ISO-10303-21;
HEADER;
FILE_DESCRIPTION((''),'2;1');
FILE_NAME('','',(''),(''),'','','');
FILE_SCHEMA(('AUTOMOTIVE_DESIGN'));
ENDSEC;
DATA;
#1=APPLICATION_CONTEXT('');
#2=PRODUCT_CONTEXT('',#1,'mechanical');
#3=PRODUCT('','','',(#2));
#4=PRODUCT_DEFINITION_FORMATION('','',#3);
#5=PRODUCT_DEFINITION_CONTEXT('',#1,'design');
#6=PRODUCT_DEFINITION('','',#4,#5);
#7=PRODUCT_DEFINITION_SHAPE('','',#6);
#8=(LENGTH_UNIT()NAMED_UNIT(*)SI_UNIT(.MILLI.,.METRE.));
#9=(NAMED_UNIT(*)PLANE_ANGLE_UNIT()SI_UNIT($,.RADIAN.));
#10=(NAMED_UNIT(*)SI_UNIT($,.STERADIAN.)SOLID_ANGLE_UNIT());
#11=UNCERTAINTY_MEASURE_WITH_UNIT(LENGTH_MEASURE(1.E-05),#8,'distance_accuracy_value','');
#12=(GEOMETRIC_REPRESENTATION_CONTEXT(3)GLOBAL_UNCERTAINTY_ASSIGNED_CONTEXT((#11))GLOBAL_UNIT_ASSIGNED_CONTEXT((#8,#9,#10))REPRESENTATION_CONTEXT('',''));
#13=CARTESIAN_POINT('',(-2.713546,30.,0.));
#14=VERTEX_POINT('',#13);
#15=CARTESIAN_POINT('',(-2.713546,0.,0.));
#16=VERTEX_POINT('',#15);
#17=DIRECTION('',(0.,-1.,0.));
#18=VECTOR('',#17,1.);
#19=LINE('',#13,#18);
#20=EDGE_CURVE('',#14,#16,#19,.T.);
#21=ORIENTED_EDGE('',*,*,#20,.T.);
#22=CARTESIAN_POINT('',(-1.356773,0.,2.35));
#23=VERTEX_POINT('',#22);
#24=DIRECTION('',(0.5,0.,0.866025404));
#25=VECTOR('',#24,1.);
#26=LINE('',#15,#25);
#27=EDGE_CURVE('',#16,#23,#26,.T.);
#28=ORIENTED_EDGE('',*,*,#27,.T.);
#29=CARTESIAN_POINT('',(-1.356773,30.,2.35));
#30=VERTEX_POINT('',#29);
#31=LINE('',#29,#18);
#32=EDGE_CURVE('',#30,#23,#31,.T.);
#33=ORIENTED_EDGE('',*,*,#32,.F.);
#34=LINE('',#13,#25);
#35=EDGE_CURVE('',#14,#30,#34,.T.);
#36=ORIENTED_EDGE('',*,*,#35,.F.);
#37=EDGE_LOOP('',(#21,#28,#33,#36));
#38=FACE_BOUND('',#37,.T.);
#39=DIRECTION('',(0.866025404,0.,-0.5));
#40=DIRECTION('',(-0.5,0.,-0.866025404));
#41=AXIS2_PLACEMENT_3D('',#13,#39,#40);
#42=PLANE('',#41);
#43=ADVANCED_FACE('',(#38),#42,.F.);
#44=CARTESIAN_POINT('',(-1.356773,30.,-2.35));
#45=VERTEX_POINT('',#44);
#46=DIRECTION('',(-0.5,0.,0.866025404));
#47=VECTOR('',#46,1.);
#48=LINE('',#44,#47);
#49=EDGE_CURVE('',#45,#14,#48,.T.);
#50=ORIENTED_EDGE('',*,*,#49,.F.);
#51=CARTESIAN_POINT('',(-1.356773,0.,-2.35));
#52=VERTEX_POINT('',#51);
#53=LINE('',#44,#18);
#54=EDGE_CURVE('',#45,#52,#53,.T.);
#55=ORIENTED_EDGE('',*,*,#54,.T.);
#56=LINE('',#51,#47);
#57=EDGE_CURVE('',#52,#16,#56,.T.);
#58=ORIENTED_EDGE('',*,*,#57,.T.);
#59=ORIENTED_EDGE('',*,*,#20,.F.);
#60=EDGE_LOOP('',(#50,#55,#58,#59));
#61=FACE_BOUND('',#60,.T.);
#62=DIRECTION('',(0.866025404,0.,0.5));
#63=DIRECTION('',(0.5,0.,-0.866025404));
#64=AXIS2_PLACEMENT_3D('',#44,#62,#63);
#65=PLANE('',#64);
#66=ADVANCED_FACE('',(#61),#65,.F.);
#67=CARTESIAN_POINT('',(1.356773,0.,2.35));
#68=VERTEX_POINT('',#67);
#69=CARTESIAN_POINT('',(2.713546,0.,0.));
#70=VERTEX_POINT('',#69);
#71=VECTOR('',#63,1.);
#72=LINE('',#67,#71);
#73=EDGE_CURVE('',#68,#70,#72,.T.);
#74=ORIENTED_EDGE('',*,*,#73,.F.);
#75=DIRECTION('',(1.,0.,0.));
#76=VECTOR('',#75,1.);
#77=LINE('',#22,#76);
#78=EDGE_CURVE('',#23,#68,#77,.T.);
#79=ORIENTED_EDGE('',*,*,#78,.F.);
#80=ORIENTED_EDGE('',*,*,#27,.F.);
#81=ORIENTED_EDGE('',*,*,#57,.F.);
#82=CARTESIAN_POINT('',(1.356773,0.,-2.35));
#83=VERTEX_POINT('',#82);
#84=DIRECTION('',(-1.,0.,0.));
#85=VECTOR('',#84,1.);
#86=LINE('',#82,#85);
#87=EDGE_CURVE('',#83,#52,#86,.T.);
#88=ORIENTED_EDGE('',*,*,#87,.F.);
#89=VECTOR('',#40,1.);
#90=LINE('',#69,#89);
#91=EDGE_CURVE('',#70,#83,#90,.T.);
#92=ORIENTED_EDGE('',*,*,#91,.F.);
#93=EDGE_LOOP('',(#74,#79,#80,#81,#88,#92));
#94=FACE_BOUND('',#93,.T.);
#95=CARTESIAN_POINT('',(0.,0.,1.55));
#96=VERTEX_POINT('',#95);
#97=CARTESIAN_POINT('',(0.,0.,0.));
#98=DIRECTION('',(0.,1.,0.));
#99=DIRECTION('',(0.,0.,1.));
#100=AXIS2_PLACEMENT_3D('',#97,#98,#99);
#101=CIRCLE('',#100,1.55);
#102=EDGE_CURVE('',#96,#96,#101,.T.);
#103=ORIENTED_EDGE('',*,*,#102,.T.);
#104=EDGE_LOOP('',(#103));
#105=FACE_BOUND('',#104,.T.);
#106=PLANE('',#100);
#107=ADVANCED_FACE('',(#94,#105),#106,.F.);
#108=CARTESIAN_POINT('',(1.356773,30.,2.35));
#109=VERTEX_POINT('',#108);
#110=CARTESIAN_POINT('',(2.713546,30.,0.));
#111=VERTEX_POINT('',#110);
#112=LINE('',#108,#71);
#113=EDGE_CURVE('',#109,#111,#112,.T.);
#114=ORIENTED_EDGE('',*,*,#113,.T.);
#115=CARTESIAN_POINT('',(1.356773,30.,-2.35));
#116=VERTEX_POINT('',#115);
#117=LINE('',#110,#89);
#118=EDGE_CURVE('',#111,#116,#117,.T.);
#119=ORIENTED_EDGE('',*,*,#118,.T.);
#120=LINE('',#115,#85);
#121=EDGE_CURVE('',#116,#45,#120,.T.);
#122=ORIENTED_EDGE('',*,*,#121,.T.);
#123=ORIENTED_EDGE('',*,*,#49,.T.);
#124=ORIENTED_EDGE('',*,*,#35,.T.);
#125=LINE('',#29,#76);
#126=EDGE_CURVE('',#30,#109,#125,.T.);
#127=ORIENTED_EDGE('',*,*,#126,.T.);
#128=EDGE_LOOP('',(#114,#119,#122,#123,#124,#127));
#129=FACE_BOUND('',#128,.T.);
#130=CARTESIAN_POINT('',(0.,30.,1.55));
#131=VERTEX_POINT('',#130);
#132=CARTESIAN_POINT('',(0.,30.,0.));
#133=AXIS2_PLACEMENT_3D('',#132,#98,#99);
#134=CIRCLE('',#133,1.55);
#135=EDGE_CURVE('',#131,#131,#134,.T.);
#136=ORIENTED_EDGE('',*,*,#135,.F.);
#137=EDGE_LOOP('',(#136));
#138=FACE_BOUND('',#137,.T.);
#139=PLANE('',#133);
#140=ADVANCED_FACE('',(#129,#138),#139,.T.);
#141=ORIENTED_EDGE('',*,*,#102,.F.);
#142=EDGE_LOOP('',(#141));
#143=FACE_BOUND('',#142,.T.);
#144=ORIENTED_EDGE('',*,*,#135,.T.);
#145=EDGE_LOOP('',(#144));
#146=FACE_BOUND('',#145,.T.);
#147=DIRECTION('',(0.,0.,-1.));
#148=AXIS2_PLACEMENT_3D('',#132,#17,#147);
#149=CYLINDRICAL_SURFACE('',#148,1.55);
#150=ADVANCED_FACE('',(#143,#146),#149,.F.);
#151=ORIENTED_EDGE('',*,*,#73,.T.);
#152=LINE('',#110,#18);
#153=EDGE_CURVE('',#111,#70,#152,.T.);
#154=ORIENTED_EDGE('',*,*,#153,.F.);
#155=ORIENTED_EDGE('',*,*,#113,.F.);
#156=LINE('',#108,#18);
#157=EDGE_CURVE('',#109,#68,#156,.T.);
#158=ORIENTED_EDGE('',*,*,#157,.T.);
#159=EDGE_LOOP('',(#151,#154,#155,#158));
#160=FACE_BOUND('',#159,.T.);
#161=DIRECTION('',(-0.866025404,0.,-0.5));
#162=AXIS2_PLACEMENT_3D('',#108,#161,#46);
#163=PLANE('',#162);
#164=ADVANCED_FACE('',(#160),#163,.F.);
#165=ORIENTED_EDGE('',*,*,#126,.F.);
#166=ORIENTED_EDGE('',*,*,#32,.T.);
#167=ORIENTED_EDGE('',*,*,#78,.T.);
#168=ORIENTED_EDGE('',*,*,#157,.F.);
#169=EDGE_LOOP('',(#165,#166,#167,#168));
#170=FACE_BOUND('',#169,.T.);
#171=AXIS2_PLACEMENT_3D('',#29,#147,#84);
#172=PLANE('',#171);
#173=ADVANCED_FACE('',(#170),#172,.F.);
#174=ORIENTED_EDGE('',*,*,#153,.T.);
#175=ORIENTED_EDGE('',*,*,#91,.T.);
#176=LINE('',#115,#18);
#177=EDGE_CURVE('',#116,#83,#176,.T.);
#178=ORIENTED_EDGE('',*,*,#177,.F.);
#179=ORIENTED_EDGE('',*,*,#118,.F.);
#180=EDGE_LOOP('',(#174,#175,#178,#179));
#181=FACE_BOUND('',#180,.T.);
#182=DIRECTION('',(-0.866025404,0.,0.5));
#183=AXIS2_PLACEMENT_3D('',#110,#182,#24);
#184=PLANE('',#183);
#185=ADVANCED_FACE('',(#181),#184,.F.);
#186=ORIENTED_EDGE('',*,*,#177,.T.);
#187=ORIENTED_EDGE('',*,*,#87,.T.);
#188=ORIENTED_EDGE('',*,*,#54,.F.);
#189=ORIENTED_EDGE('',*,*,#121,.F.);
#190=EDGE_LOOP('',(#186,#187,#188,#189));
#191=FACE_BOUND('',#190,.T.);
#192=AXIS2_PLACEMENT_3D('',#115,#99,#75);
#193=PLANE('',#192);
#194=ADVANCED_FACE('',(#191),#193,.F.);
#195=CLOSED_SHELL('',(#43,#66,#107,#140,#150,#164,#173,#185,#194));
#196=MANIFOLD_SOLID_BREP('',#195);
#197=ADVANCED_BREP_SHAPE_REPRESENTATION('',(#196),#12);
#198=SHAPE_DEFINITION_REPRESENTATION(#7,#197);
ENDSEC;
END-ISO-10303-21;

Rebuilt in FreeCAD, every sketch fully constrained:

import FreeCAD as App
import Part
import Sketcher
from FreeCAD import Vector
Q = App.Units.Quantity

doc = App.newDocument("Part")
body = doc.addObject("PartDesign::Body", "Body")

sketch1 = body.newObject("Sketcher::SketchObject", "Sketch")
sketch1.AttachmentSupport = (doc.getObject("XZ_Plane"), [""])
sketch1.MapMode = "FlatFace"
sketch1.addGeometry(Part.LineSegment(Vector(2.7, 0, 0), Vector(1.4, -2.4, 0)), False)
sketch1.addGeometry(Part.LineSegment(Vector(1.4, -2.4, 0), Vector(-1.4, -2.4, 0)), False)
sketch1.addGeometry(Part.LineSegment(Vector(-1.4, -2.4, 0), Vector(-2.7, 0, 0)), False)
sketch1.addGeometry(Part.LineSegment(Vector(-2.7, 0, 0), Vector(-1.4, 2.4, 0)), False)
sketch1.addGeometry(Part.LineSegment(Vector(-1.4, 2.4, 0), Vector(1.4, 2.4, 0)), False)
sketch1.addGeometry(Part.LineSegment(Vector(1.4, 2.4, 0), Vector(2.7, 0, 0)), False)
sketch1.addGeometry(Part.Circle(Vector(0, 0, 0), Vector(0, 0, 1), 1.6), False)
sketch1.addConstraint(Sketcher.Constraint("Coincident", 0, 2, 1, 1))
sketch1.addConstraint(Sketcher.Constraint("Coincident", 1, 2, 2, 1))
sketch1.addConstraint(Sketcher.Constraint("Coincident", 2, 2, 3, 1))
sketch1.addConstraint(Sketcher.Constraint("Coincident", 3, 2, 4, 1))
sketch1.addConstraint(Sketcher.Constraint("Coincident", 4, 2, 5, 1))
sketch1.addConstraint(Sketcher.Constraint("Coincident", 5, 2, 0, 1))
sketch1.addConstraint(Sketcher.Constraint("Horizontal", 1))
sketch1.addConstraint(Sketcher.Constraint("Horizontal", 4))
sketch1.addConstraint(Sketcher.Constraint("Coincident", 6, 3, -1, 1))
sketch1.addConstraint(Sketcher.Constraint("Symmetric", 0, 2, 3, 2, -1, 1))
sketch1.addConstraint(Sketcher.Constraint("Symmetric", 2, 2, 5, 2, -1, 1))
sketch1.addConstraint(Sketcher.Constraint("PointOnObject", 2, 2, -1))
sketch1.addConstraint(Sketcher.Constraint("Parallel", 2, 5))
sketch1.addConstraint(Sketcher.Constraint("Vertical", 1, 2, 3, 2))
sketch1.addConstraint(Sketcher.Constraint("Diameter", 6, 3.1))
sketch1.addConstraint(Sketcher.Constraint("Angle", 0, Q("-120 deg")))
sketch1.addConstraint(Sketcher.Constraint("DistanceY", 1, 2, 3, 2, 4.7))
sketch1.addConstraint(Sketcher.Constraint("DistanceX", 1, 2, 1, 1, 2.713546))
pad1 = body.newObject("PartDesign::Pad", "Pad")
pad1.Profile = sketch1
pad1.Length = 30
pad1.Reversed = True

doc.recompute()
